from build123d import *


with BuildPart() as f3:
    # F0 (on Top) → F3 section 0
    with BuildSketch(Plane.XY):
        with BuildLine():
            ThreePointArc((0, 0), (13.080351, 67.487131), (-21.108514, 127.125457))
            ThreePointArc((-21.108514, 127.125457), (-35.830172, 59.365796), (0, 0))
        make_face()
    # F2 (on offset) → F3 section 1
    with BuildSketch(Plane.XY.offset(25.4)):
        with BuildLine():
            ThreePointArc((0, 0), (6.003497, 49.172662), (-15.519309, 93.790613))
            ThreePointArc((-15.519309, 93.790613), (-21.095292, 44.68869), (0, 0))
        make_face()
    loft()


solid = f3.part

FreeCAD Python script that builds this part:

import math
import FreeCAD as App
import Part
import Sketcher

doc = App.newDocument("Part")
body = doc.addObject("PartDesign::Body", "Body")

# Sketch on XY plane
sketch1 = body.newObject("Sketcher::SketchObject", "Sketch")
sketch1.AttachmentSupport = (doc.getObject("XY_Plane"), [""])
sketch1.MapMode = "FlatFace"
sketch1.addGeometry(Part.ArcOfCircle(Part.Circle(App.Vector(-84, 51, 0), App.Vector(0, 0, 1), 99), math.radians(-31), math.radians(50)), False)
sketch1.addGeometry(Part.ArcOfCircle(Part.Circle(App.Vector(57, 75, 0), App.Vector(0, 0, 1), 94), math.radians(146), math.radians(233)), False)
sketch1.addConstraint(Sketcher.Constraint("Coincident", 0, 1, 1, 2))
sketch1.addConstraint(Sketcher.Constraint("Coincident", 1, 1, 0, 2))
sketch1.addConstraint(Sketcher.Constraint("Coincident", 0, 1, -1, 1))
sketch1.addConstraint(Sketcher.Constraint("Radius", 0, 98.621918))
sketch1.addConstraint(Sketcher.Constraint("Radius", 1, 93.827603))
sketch1.addConstraint(Sketcher.Constraint("DistanceY", -1, 1, 0, 3, 51.332662))
sketch1.addConstraint(Sketcher.Constraint("DistanceX", 0, 3, 1, 1, 63.10099))

# Sketch on XY plane
sketch2 = body.newObject("Sketcher::SketchObject", "Sketch001")
sketch2.AttachmentSupport = (doc.getObject("XY_Plane"), [""])
sketch2.MapMode = "FlatFace"
sketch2.AttachmentOffset = App.Placement(App.Vector(0, 0, 25.4), App.Rotation())
sketch2.addGeometry(Part.ArcOfCircle(Part.Circle(App.Vector(-81, 35, 0), App.Vector(0, 0, 1), 88), math.radians(-23), math.radians(42)), False)
sketch2.addGeometry(Part.ArcOfCircle(Part.Circle(App.Vector(68, 59, 0), App.Vector(0, 0, 1), 90), math.radians(158), math.radians(221)), False)
sketch2.addConstraint(Sketcher.Constraint("Coincident", 0, 1, 1, 2))
sketch2.addConstraint(Sketcher.Constraint("Coincident", 1, 1, 0, 2))
sketch2.addConstraint(Sketcher.Constraint("Coincident", 0, 1, -1, 1))
sketch2.addConstraint(Sketcher.Constraint("Radius", 0, 87.954877))
sketch2.addConstraint(Sketcher.Constraint("Radius", 1, 90.334262))
sketch2.addConstraint(Sketcher.Constraint("DistanceX", 1, 1, -1, 1, 15.519309))
sketch2.addConstraint(Sketcher.Constraint("DistanceX", 0, 3, -1, 1, 80.771473))

additiveloft = body.newObject("PartDesign::AdditiveLoft", "AdditiveLoft")
additiveloft.Profile = sketch1
additiveloft.Sections = [sketch2]

doc.recompute()
